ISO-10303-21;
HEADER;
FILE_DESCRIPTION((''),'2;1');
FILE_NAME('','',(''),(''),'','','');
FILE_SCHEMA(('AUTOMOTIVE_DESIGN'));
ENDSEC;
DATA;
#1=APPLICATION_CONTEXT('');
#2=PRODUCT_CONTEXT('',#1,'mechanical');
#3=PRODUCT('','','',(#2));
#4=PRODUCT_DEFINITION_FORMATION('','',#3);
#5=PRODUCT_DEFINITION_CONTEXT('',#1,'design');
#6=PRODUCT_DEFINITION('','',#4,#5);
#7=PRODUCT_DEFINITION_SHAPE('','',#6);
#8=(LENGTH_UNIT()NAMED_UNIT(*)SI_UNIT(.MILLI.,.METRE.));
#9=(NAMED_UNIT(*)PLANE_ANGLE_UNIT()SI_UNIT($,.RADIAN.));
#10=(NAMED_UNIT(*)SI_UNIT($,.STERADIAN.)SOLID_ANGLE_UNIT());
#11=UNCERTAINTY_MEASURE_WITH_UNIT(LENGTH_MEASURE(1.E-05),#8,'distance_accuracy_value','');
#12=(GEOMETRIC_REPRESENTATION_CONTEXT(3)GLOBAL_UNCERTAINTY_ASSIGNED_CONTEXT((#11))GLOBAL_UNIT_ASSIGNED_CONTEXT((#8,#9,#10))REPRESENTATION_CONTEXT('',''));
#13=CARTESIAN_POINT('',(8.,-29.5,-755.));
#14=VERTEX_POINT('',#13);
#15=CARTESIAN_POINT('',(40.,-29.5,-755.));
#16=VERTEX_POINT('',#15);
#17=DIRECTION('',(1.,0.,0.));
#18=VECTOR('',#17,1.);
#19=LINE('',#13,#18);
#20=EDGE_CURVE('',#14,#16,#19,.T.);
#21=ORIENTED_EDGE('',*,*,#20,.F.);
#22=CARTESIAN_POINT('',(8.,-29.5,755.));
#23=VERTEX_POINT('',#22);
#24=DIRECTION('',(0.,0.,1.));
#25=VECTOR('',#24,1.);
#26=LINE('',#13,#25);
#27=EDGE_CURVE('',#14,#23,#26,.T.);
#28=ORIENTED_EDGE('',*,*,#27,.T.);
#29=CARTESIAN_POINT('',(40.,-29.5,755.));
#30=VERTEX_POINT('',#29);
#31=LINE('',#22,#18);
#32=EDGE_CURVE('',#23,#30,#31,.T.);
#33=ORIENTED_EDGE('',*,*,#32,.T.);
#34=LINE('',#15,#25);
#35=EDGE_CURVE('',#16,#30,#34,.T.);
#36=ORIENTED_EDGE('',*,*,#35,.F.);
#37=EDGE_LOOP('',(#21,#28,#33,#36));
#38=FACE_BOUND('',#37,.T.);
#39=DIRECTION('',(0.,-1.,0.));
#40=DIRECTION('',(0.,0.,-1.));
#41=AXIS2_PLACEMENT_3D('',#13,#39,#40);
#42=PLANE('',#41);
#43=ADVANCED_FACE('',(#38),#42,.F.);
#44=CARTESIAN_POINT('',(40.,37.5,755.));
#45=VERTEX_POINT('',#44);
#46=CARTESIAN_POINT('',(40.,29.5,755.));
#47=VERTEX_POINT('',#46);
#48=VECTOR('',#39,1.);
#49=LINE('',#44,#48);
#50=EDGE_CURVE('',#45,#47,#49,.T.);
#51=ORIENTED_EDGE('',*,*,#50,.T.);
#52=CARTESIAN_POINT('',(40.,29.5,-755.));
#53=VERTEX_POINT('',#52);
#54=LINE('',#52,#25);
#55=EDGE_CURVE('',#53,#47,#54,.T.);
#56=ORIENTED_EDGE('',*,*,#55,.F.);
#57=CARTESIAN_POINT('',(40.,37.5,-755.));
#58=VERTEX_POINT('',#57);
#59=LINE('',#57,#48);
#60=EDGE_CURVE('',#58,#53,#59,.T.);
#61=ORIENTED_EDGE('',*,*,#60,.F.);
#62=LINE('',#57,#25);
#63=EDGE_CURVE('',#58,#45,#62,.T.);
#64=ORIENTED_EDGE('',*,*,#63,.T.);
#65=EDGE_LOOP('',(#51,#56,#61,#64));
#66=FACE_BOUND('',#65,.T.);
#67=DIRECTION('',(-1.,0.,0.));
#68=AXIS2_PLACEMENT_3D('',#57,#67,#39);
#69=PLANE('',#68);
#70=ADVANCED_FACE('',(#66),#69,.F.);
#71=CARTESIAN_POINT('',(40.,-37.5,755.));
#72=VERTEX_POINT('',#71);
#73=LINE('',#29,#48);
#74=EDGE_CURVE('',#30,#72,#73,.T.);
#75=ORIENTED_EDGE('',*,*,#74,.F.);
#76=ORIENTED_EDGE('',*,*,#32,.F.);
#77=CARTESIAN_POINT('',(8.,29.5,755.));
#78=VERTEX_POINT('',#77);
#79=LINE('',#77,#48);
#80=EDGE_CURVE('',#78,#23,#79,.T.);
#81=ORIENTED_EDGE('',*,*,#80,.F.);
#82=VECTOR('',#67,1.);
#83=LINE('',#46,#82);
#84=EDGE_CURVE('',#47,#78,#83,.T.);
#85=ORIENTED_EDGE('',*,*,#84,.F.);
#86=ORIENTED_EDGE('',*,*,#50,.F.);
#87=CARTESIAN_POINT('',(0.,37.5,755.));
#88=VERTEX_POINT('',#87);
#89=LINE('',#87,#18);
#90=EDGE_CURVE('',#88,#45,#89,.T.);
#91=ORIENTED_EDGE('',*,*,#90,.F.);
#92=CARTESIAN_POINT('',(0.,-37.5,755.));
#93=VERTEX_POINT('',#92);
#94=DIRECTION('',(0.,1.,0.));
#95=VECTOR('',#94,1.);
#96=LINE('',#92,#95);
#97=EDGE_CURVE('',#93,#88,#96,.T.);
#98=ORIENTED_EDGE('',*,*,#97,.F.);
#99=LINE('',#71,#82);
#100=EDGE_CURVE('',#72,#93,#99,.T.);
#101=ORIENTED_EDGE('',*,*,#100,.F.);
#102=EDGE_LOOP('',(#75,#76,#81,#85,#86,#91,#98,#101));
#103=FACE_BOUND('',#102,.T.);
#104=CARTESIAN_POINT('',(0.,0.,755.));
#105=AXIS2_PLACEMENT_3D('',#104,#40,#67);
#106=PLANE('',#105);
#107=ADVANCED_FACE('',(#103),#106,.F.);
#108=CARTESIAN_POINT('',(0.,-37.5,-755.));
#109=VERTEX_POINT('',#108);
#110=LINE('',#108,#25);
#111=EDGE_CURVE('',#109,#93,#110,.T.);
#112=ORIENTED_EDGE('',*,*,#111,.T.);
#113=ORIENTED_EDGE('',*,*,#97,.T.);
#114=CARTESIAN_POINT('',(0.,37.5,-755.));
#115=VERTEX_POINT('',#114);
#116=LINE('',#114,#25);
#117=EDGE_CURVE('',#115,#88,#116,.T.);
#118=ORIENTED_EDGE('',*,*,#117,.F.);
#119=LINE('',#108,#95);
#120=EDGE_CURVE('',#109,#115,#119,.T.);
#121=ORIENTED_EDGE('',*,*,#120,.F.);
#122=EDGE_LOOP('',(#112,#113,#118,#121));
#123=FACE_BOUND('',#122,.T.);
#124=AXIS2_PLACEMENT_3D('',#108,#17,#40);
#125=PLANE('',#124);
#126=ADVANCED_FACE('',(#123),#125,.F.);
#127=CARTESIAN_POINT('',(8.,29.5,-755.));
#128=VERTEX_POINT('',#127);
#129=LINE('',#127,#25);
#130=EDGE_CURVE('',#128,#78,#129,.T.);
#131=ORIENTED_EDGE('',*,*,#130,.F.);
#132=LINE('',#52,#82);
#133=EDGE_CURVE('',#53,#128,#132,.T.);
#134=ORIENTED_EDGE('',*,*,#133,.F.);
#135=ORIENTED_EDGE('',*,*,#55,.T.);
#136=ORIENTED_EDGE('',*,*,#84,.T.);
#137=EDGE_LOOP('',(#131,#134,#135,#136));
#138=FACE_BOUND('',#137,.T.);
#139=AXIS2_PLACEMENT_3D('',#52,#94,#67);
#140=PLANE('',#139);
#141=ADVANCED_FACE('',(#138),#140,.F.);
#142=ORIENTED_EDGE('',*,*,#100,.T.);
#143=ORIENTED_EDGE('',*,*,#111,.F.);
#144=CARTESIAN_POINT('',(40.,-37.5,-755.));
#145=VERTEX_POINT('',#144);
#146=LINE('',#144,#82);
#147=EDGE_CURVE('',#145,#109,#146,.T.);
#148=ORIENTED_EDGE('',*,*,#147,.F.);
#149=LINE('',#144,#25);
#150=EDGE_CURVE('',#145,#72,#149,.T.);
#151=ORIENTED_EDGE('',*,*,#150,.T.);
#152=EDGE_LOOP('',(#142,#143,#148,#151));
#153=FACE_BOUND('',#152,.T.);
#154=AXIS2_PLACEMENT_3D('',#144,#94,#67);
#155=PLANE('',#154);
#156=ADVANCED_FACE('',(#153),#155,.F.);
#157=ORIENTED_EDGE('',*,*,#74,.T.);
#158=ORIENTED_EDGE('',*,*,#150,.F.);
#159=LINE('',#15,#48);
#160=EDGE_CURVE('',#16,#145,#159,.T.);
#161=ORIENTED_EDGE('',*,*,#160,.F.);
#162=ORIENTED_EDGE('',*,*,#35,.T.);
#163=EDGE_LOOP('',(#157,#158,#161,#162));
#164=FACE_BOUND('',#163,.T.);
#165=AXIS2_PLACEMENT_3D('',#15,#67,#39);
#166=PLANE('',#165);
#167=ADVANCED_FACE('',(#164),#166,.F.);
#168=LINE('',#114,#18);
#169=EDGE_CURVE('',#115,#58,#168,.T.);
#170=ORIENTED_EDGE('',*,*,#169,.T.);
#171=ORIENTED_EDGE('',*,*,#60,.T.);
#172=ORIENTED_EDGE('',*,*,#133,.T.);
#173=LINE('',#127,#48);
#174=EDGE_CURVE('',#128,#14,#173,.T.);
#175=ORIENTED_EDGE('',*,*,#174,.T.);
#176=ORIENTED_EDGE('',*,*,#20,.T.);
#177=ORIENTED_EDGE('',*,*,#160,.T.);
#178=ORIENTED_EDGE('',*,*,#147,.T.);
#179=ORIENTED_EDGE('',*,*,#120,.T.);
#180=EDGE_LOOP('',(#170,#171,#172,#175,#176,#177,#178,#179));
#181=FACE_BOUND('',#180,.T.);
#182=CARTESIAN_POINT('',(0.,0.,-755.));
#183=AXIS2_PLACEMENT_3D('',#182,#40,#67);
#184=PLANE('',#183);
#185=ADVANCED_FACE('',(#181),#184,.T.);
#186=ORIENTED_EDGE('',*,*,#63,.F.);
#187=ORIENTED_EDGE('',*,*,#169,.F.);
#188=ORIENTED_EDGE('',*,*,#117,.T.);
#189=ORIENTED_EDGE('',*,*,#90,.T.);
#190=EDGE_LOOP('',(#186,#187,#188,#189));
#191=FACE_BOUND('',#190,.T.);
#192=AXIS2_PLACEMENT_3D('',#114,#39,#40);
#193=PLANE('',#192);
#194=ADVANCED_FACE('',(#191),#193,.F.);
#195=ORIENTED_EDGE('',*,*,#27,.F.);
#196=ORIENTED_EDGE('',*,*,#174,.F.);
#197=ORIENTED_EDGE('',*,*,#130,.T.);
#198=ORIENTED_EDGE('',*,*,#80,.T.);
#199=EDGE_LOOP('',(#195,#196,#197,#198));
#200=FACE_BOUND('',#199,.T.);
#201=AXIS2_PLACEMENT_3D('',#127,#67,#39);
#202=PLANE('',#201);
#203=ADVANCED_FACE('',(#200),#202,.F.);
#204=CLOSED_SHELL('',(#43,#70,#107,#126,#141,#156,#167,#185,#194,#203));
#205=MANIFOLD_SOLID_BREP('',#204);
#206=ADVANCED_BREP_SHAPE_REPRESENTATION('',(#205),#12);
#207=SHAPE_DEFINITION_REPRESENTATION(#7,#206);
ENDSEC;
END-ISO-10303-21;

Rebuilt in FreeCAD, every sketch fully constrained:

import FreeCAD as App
import Part
import Sketcher
from FreeCAD import Vector

doc = App.newDocument("Part")
params = doc.addObject("Spreadsheet::Sheet", "Params")
for row, (alias, value) in enumerate([
    ("sketch1_width", "40 mm"),
    ("sketch1_width2", "32 mm"),
    ("sketch1_height", "75 mm"),
    ("sketch1_height2", "8 mm"),
    ("pad1_length", "1510 mm"),
], start=1):
    params.set(f"A{row}", alias)
    params.set(f"B{row}", "=" + value)
    params.setAlias(f"B{row}", alias)

body = doc.addObject("PartDesign::Body", "Body")

# Sketch on XY plane
sketch1 = body.newObject("Sketcher::SketchObject", "Sketch")
sketch1.AttachmentSupport = (doc.getObject("XY_Plane"), [""])
sketch1.MapMode = "FlatFace"
sketch1.AttachmentOffset = App.Placement(Vector(0, 0, 755), App.Rotation())
sketch1.addGeometry([
    Part.LineSegment(Vector(0, -38, 0), Vector(0, 38, 0)),  # 0
    Part.LineSegment(Vector(0, 38, 0), Vector(40, 38, 0)),  # 1
    Part.LineSegment(Vector(40, 38, 0), Vector(40, 30, 0)),  # 2
    Part.LineSegment(Vector(40, 30, 0), Vector(8, 30, 0)),  # 3
    Part.LineSegment(Vector(8, 30, 0), Vector(8, -30, 0)),  # 4
    Part.LineSegment(Vector(8, -30, 0), Vector(40, -30, 0)),  # 5
    Part.LineSegment(Vector(40, -30, 0), Vector(40, -38, 0)),  # 6
    Part.LineSegment(Vector(40, -38, 0), Vector(0, -38, 0)),  # 7
], False)
sketch1.addConstraint([
    Sketcher.Constraint("Coincident", 0, 2, 1, 1),
    Sketcher.Constraint("Coincident", 1, 2, 2, 1),
    Sketcher.Constraint("Coincident", 2, 2, 3, 1),
    Sketcher.Constraint("Coincident", 3, 2, 4, 1),
    Sketcher.Constraint("Coincident", 4, 2, 5, 1),
    Sketcher.Constraint("Coincident", 5, 2, 6, 1),
    Sketcher.Constraint("Coincident", 6, 2, 7, 1),
    Sketcher.Constraint("Coincident", 7, 2, 0, 1),
    Sketcher.Constraint("Vertical", 0),
    Sketcher.Constraint("Horizontal", 1),
    Sketcher.Constraint("Vertical", 2),
    Sketcher.Constraint("Horizontal", 3),
    Sketcher.Constraint("Vertical", 4),
    Sketcher.Constraint("Horizontal", 5),
    Sketcher.Constraint("Vertical", 6),
    Sketcher.Constraint("Horizontal", 7),
    Sketcher.Constraint("Symmetric", 0, 2, 7, 2, -1, 1),
    Sketcher.Constraint("Symmetric", 2, 2, 5, 2, -1),
    Sketcher.Constraint("DistanceX", 1, 1, 1, 2, 40.0),
    Sketcher.Constraint("DistanceX", 3, 2, 3, 1, 32.0),
    Sketcher.Constraint("DistanceY", 0, 1, 0, 2, 75.0),
    Sketcher.Constraint("DistanceY", 2, 2, 2, 1, 8.0),
])
sketch1.setExpression("Constraints[18]", "Params.sketch1_width")
sketch1.setExpression("Constraints[19]", "Params.sketch1_width2")
sketch1.setExpression("Constraints[20]", "Params.sketch1_height")
sketch1.setExpression("Constraints[21]", "Params.sketch1_height2")
pad1 = body.newObject("PartDesign::Pad", "Pad")
pad1.Profile = sketch1
pad1.setExpression("Length", "Params.pad1_length")
pad1.Reversed = True

doc.recompute()
